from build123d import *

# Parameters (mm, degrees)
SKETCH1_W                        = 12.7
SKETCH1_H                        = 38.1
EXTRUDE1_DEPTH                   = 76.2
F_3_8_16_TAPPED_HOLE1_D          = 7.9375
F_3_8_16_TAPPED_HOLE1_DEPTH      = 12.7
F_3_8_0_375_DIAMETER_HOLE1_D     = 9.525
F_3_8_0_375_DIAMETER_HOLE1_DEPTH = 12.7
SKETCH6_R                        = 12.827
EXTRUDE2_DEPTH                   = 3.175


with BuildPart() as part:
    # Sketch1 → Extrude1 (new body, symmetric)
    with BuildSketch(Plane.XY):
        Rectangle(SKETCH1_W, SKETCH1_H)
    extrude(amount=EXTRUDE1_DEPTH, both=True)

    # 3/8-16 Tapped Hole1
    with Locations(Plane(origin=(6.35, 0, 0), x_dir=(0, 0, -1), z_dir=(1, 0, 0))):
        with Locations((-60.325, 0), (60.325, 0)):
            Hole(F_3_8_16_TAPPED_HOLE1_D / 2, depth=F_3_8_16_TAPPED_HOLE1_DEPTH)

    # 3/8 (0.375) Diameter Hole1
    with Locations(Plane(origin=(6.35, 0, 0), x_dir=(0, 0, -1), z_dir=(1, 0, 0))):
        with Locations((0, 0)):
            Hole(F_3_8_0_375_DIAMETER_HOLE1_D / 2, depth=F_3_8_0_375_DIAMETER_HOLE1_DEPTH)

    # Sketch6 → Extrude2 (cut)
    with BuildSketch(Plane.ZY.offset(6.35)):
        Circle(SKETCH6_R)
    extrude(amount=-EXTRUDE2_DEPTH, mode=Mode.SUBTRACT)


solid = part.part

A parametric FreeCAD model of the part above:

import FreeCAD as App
import Part
import Sketcher
Q = App.Units.Quantity

doc = App.newDocument("Part")
body = doc.addObject("PartDesign::Body", "Body")

# Sketch on XY plane
sketch1 = doc.addObject("Sketcher::SketchObject", "Sketch")
body.addObject(sketch1)
sketch1.AttachmentSupport = (doc.XY_Plane, [""])
sketch1.MapMode = "FlatFace"
sketch1.addGeometry([
    Part.LineSegment(App.Vector(-6.35, 19.05, 0), App.Vector(-6.35, -19.05, 0)),
    Part.LineSegment(App.Vector(-6.35, -19.05, 0), App.Vector(6.35, -19.05, 0)),
    Part.LineSegment(App.Vector(6.35, -19.05, 0), App.Vector(6.35, 19.05, 0)),
    Part.LineSegment(App.Vector(6.35, 19.05, 0), App.Vector(-6.35, 19.05, 0)),
], False)
sketch1.addConstraint([
    Sketcher.Constraint("Coincident", 0, 2, 1, 1),
    Sketcher.Constraint("Coincident", 1, 2, 2, 1),
    Sketcher.Constraint("Coincident", 2, 2, 3, 1),
    Sketcher.Constraint("Coincident", 3, 2, 0, 1),
    Sketcher.Constraint("Vertical", 0),
    Sketcher.Constraint("Horizontal", 1),
    Sketcher.Constraint("Vertical", 2),
    Sketcher.Constraint("Horizontal", 3),
    Sketcher.Constraint("Symmetric", 0, 2, 2, 2, -1, 1),
    Sketcher.Constraint("DistanceX", 1, 1, 1, 2, Q("0.5 in")),
    Sketcher.Constraint("DistanceY", 0, 2, 0, 1, Q("1.5 in")),
])
pad1 = doc.addObject("PartDesign::Pad", "Pad")
body.addObject(pad1)
pad1.Profile = sketch1
pad1.Length = Q("6 in")
pad1.Midplane = True

# Sketch on YZ plane
sketch2 = doc.addObject("Sketcher::SketchObject", "Sketch001")
body.addObject(sketch2)
sketch2.AttachmentSupport = (doc.YZ_Plane, [""])
sketch2.MapMode = "FlatFace"
sketch2.AttachmentOffset = App.Placement(App.Vector(0, 0, 0.25 * 25.4), App.Rotation())
sketch2.addGeometry([
    Part.Circle(App.Vector(0, 60.325, 0), App.Vector(0, 0, 1), 3.96875),
    Part.Circle(App.Vector(0, -60.325, 0), App.Vector(0, 0, 1), 3.96875),
], False)
sketch2.addConstraint([
    Sketcher.Constraint("Equal", 0, 1),
    Sketcher.Constraint("Symmetric", 0, 3, 1, 3, -1, 1),
    Sketcher.Constraint("PointOnObject", 0, 3, -2),
    Sketcher.Constraint("Diameter", 0, Q("0.3125 in")),
    Sketcher.Constraint("DistanceY", 1, 3, 0, 3, Q("4.75 in")),
])
doc.recompute()
hole = doc.addObject("PartDesign::Hole", "Hole")
body.addObject(hole)
hole.Profile = sketch2
hole.ThreadType = "None"
hole.Diameter = Q("0.3125 in")
hole.DepthType = "Dimension"
hole.Depth = Q("0.5 in")
hole.DrillPoint = "Flat"

# Sketch on YZ plane
sketch3 = doc.addObject("Sketcher::SketchObject", "Sketch002")
body.addObject(sketch3)
sketch3.AttachmentSupport = (doc.YZ_Plane, [""])
sketch3.MapMode = "FlatFace"
sketch3.AttachmentOffset = App.Placement(App.Vector(0, 0, 0.25 * 25.4), App.Rotation())
sketch3.addGeometry(Part.Circle(App.Vector(0, 0, 0), App.Vector(0, 0, 1), 4.7625), False)
sketch3.addConstraint([
    Sketcher.Constraint("Coincident", 0, 3, -1, 1),
    Sketcher.Constraint("Diameter", 0, Q("0.375 in")),
])
doc.recompute()
hole2 = doc.addObject("PartDesign::Hole", "Hole001")
body.addObject(hole2)
hole2.Profile = sketch3
hole2.ThreadType = "None"
hole2.Diameter = Q("0.375 in")
hole2.DepthType = "Dimension"
hole2.Depth = Q("0.5 in")
hole2.DrillPoint = "Flat"

# Sketch on YZ plane
sketch4 = doc.addObject("Sketcher::SketchObject", "Sketch003")
body.addObject(sketch4)
sketch4.AttachmentSupport = (doc.YZ_Plane, [""])
sketch4.MapMode = "FlatFace"
sketch4.AttachmentOffset = App.Placement(App.Vector(0, 0, -0.25 * 25.4), App.Rotation())
sketch4.addGeometry(Part.Circle(App.Vector(0, 0, 0), App.Vector(0, 0, 1), 12.827), False)
sketch4.addConstraint([
    Sketcher.Constraint("Coincident", 0, 3, -1, 1),
    Sketcher.Constraint("Diameter", 0, Q("1.01 in")),
])
pocket1 = doc.addObject("PartDesign::Pocket", "Pocket")
body.addObject(pocket1)
pocket1.Profile = sketch4
pocket1.Length = Q("0.125 in")
pocket1.Reversed = True

doc.recompute()
